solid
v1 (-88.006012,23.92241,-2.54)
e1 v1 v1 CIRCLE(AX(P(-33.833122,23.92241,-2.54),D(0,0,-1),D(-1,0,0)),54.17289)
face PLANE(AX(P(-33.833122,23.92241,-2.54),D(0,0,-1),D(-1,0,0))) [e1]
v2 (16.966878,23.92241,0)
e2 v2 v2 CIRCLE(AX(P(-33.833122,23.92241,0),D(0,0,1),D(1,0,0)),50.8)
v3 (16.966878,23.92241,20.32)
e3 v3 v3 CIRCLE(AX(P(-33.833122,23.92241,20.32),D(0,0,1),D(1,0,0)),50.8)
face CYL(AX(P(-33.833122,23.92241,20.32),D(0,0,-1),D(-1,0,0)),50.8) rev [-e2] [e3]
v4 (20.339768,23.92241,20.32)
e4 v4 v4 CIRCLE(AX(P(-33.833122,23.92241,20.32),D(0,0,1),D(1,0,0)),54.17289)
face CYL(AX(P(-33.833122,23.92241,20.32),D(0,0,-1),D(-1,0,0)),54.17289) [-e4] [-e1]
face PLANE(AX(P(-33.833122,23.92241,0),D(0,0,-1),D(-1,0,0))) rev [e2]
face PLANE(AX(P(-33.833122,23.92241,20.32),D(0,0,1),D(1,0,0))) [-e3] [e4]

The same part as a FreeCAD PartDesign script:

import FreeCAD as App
import Part
import Sketcher
Q = App.Units.Quantity

doc = App.newDocument("Part")
params = doc.addObject("Spreadsheet::Sheet", "Params")
for row, (alias, value) in enumerate([
    ("sketch1_diameter", "4 in"),
    ("pad1_length", "0.8 in"),
    ("pad2_length", "0.1 in"),
], start=1):
    params.set(f"A{row}", alias)
    params.set(f"B{row}", "=" + value)
    params.setAlias(f"B{row}", alias)

body = doc.addObject("PartDesign::Body", "Body")

# Sketch on XY plane
sketch1 = body.newObject("Sketcher::SketchObject", "Sketch")
sketch1.AttachmentSupport = (doc.getObject("XY_Plane"), [""])
sketch1.MapMode = "FlatFace"
sketch1.addGeometry(Part.Circle(App.Vector(-34, 24, 0), App.Vector(0, 0, 1), 54), False)
sketch1.addGeometry(Part.Circle(App.Vector(-34, 24, 0), App.Vector(0, 0, 1), 51), False)
sketch1.addConstraint(Sketcher.Constraint("Coincident", 1, 3, 0, 3))
sketch1.addConstraint(Sketcher.Constraint("Diameter", 1, Q("4 in")))
sketch1.addConstraint(Sketcher.Constraint("Diameter", 0, Q("108.345779 mm")))
sketch1.addConstraint(Sketcher.Constraint("DistanceY", -1, 1, 0, 3, Q("23.92241 mm")))
sketch1.addConstraint(Sketcher.Constraint("DistanceX", 0, 3, -1, 1, Q("33.833122 mm")))
sketch1.setExpression("Constraints[1]", "Params.sketch1_diameter")
pad1 = body.newObject("PartDesign::Pad", "Pad")
pad1.Profile = sketch1
pad1.setExpression("Length", "Params.pad1_length")

# Sketch on XY plane
sketch2 = body.newObject("Sketcher::SketchObject", "Sketch001")
sketch2.AttachmentSupport = (doc.getObject("XY_Plane"), [""])
sketch2.MapMode = "FlatFace"
sketch2.addGeometry(Part.Circle(App.Vector(-34, 24, 0), App.Vector(0, 0, 1), 54), False)
sketch2.addConstraint(Sketcher.Constraint("Diameter", 0, Q("108.345779 mm")))
sketch2.addConstraint(Sketcher.Constraint("DistanceY", -1, 1, 0, 3, Q("23.92241 mm")))
sketch2.addConstraint(Sketcher.Constraint("DistanceX", 0, 3, -1, 1, Q("33.833122 mm")))
pad2 = body.newObject("PartDesign::Pad", "Pad001")
pad2.Profile = sketch2
pad2.setExpression("Length", "Params.pad2_length")
pad2.Reversed = True

doc.recompute()
